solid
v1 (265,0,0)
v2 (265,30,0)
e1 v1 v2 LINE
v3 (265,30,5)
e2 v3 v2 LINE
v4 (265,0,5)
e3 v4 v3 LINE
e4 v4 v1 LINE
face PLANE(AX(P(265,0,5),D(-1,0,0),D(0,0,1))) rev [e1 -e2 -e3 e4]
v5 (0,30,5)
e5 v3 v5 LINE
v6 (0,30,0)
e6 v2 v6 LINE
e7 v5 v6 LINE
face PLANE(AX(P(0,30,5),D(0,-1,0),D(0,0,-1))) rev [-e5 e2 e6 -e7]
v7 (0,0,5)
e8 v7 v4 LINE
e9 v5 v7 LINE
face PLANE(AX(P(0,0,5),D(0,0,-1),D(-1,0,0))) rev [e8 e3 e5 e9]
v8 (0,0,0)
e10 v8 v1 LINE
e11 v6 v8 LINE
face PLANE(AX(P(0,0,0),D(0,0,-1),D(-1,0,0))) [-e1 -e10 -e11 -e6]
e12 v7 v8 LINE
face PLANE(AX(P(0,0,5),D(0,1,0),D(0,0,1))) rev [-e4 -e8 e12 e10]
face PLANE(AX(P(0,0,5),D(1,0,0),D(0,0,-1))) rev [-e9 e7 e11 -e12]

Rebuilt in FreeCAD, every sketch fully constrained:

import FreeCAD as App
import Part
import Sketcher

V = App.Vector


def add_polygon(sketch, points):
    """Adds a closed chain of lines whose ends are joined by coincident constraints."""
    first, n = sketch.GeometryCount, len(points)
    for a, b in zip(points, points[1:] + points[:1]):
        sketch.addGeometry(Part.LineSegment(App.Vector(*a, 0), App.Vector(*b, 0)), False)
    for i in range(n):
        sketch.addConstraint(Sketcher.Constraint("Coincident", first + i, 2, first + (i + 1) % n, 1))

doc = App.newDocument("Part")
body = doc.addObject("PartDesign::Body", "Body")

# Sketch on XY plane
sketch1 = body.newObject("Sketcher::SketchObject", "Sketch")
sketch1.AttachmentSupport = (doc.getObject("XY_Plane"), [""])
sketch1.MapMode = "FlatFace"
add_polygon(sketch1, [(0, 30), (0, 0), (265, 0), (265, 30)])  # lines 0-3
sketch1.addConstraint(Sketcher.Constraint("Vertical", 0))
sketch1.addConstraint(Sketcher.Constraint("Horizontal", 1))
sketch1.addConstraint(Sketcher.Constraint("Vertical", 2))
sketch1.addConstraint(Sketcher.Constraint("Horizontal", 3))
sketch1.addConstraint(Sketcher.Constraint("Coincident", 0, 2, -1, 1))
sketch1.addConstraint(Sketcher.Constraint("DistanceX", 1, 1, 1, 2, 265.0))
sketch1.addConstraint(Sketcher.Constraint("DistanceY", 0, 2, 0, 1, 30.0))
pad1 = body.newObject("PartDesign::Pad", "Pad")
pad1.Profile = sketch1
pad1.Length = 5

doc.recompute()
